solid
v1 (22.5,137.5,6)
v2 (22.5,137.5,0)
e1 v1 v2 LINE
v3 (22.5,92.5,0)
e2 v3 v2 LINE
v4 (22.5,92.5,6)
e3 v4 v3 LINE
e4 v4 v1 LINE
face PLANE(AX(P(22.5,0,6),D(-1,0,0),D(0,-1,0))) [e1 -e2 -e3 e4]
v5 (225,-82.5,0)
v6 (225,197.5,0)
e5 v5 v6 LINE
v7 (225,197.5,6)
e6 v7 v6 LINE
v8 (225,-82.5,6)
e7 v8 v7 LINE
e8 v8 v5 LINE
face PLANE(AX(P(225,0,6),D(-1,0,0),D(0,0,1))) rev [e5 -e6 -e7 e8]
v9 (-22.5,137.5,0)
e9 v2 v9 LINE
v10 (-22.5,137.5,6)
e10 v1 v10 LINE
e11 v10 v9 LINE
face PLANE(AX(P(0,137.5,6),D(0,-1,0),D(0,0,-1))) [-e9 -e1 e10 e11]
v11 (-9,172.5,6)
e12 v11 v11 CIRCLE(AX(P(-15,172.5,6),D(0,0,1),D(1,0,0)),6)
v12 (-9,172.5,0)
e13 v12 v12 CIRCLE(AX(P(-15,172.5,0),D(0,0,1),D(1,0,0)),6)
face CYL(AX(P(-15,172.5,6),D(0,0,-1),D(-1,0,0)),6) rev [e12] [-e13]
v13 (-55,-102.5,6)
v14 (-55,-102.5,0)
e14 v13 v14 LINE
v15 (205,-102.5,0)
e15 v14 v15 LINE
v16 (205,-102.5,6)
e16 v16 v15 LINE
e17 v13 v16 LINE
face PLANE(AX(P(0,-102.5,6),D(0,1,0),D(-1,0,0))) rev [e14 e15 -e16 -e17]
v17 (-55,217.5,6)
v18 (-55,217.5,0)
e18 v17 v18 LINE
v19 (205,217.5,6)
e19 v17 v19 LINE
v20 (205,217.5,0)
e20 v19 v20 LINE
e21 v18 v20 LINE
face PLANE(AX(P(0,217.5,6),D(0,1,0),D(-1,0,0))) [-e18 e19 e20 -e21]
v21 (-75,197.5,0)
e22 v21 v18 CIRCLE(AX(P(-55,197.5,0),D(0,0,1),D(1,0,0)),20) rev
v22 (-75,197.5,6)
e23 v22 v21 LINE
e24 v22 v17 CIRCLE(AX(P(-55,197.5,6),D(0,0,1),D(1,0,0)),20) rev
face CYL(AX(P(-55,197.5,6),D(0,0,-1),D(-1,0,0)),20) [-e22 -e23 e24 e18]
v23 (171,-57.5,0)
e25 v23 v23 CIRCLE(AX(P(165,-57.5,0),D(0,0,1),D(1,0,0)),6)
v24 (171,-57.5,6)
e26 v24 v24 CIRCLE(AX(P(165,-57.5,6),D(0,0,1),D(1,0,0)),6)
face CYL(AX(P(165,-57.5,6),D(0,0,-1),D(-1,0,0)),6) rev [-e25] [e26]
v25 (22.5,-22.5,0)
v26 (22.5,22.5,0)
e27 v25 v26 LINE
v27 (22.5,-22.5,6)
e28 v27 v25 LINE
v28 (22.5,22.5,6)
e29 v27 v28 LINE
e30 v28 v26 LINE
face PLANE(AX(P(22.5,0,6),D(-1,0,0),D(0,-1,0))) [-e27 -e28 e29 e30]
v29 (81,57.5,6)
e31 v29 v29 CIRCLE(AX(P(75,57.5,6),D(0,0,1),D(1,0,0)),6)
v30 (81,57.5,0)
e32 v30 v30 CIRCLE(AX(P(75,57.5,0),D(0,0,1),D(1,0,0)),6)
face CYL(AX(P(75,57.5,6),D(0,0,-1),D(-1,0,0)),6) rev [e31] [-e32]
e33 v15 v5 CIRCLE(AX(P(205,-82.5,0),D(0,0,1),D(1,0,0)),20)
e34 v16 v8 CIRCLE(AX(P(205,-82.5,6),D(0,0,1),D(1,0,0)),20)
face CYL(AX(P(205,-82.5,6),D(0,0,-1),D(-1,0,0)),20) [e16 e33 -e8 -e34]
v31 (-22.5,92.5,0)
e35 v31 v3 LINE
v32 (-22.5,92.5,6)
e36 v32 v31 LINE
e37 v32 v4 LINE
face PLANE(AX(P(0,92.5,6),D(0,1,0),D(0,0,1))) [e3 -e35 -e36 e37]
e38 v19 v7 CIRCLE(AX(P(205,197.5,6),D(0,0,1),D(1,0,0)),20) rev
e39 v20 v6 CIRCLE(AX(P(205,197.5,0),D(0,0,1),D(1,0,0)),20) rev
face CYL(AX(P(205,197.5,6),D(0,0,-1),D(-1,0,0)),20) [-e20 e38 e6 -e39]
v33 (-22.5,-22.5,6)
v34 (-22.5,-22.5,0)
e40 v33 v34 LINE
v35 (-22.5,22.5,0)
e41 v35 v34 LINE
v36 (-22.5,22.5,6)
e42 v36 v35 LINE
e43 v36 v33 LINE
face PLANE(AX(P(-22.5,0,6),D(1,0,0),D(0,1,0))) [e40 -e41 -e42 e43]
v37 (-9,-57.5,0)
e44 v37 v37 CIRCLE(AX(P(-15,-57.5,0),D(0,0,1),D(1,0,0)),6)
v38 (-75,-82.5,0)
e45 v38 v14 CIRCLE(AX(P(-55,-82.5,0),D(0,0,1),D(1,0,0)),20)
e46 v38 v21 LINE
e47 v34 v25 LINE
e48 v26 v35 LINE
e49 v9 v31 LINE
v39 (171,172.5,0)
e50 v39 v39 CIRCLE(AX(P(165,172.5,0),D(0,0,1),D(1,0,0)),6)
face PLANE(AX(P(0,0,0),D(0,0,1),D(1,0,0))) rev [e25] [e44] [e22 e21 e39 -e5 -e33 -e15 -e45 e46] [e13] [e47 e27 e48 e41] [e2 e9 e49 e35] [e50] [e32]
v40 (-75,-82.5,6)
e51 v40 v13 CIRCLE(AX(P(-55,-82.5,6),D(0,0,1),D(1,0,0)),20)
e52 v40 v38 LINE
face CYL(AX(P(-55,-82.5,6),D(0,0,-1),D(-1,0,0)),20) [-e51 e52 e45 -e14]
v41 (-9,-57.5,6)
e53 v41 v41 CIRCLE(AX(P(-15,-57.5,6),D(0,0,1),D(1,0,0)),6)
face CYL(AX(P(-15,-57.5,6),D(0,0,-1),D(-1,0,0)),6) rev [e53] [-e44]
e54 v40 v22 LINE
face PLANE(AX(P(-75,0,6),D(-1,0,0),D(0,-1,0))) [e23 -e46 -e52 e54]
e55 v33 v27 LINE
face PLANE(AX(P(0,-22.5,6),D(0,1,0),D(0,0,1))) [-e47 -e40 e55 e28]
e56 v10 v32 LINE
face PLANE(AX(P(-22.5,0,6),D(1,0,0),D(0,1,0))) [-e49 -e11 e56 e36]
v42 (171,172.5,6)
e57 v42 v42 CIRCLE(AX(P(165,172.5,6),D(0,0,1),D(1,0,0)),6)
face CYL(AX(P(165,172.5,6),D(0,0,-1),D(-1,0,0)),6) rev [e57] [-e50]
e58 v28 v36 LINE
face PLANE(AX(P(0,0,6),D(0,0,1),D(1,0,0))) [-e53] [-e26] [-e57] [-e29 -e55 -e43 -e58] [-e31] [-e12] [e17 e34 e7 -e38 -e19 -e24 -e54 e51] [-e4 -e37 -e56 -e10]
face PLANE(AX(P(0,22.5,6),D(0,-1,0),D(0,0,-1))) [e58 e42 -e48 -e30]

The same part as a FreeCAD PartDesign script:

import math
import FreeCAD as App
import Part
import Sketcher

V = App.Vector

doc = App.newDocument("Part")
params = doc.addObject("Spreadsheet::Sheet", "Params")
for row, (alias, value) in enumerate([
    ("sketch1_diameter", "12 mm"),
    ("sketch1_radius", "20 mm"),
    ("sketch1_width", "260 mm"),
    ("sketch1_width2", "45 mm"),
    ("sketch1_height", "280 mm"),
    ("pad1_length", "6 mm"),
], start=1):
    params.set(f"A{row}", alias)
    params.set(f"B{row}", "=" + value)
    params.setAlias(f"B{row}", alias)

body = doc.addObject("PartDesign::Body", "Body")

# Sketch on XY plane
sketch1 = body.newObject("Sketcher::SketchObject", "Sketch")
sketch1.AttachmentSupport = (doc.getObject("XY_Plane"), [""])
sketch1.MapMode = "FlatFace"
sketch1.addGeometry(Part.LineSegment(V(-55, -102, 0), V(205, -102, 0)), False)
sketch1.addGeometry(Part.ArcOfCircle(Part.Circle(V(205, -83, 0), V(0, 0, 1), 20), math.radians(-90), math.radians(0)), False)
sketch1.addGeometry(Part.LineSegment(V(225, -82, 0), V(225, 198, 0)), False)
sketch1.addGeometry(Part.ArcOfCircle(Part.Circle(V(205, 198, 0), V(0, 0, 1), 20), math.radians(0), math.radians(90)), False)
sketch1.addGeometry(Part.LineSegment(V(205, 218, 0), V(-55, 218, 0)), False)
sketch1.addGeometry(Part.ArcOfCircle(Part.Circle(V(-55, 198, 0), V(0, 0, 1), 20), math.radians(90), math.radians(180)), False)
sketch1.addGeometry(Part.LineSegment(V(-75, 198, 0), V(-75, -82, 0)), False)
sketch1.addGeometry(Part.ArcOfCircle(Part.Circle(V(-55, -83, 0), V(0, 0, 1), 20), math.radians(180), math.radians(270)), False)
sketch1.addGeometry(Part.Circle(V(-15, -58, 0), V(0, 0, 1), 6), False)
sketch1.addGeometry(Part.LineSegment(V(22, 22, 0), V(22, -22, 0)), False)
sketch1.addGeometry(Part.LineSegment(V(22, -22, 0), V(-22, -22, 0)), False)
sketch1.addGeometry(Part.LineSegment(V(-22, -22, 0), V(-22, 22, 0)), False)
sketch1.addGeometry(Part.LineSegment(V(-22, 22, 0), V(22, 22, 0)), False)
sketch1.addGeometry(Part.Circle(V(165, -58, 0), V(0, 0, 1), 6), False)
sketch1.addGeometry(Part.LineSegment(V(22, 92, 0), V(-22, 92, 0)), False)
sketch1.addGeometry(Part.LineSegment(V(-22, 92, 0), V(-22, 138, 0)), False)
sketch1.addGeometry(Part.LineSegment(V(-22, 138, 0), V(22, 138, 0)), False)
sketch1.addGeometry(Part.LineSegment(V(22, 138, 0), V(22, 92, 0)), False)
sketch1.addGeometry(Part.Circle(V(-15, 172, 0), V(0, 0, 1), 6), False)
sketch1.addGeometry(Part.Circle(V(75, 58, 0), V(0, 0, 1), 6), False)
sketch1.addGeometry(Part.Circle(V(165, 172, 0), V(0, 0, 1), 6), False)
sketch1.addConstraint(Sketcher.Constraint("Tangent", 0, 2, 1, 1))
sketch1.addConstraint(Sketcher.Constraint("Tangent", 1, 2, 2, 1))
sketch1.addConstraint(Sketcher.Constraint("Tangent", 2, 2, 3, 1))
sketch1.addConstraint(Sketcher.Constraint("Tangent", 3, 2, 4, 1))
sketch1.addConstraint(Sketcher.Constraint("Tangent", 4, 2, 5, 1))
sketch1.addConstraint(Sketcher.Constraint("Tangent", 5, 2, 6, 1))
sketch1.addConstraint(Sketcher.Constraint("Tangent", 6, 2, 7, 1))
sketch1.addConstraint(Sketcher.Constraint("Tangent", 7, 2, 0, 1))
sketch1.addConstraint(Sketcher.Constraint("Coincident", 9, 2, 10, 1))
sketch1.addConstraint(Sketcher.Constraint("Coincident", 10, 2, 11, 1))
sketch1.addConstraint(Sketcher.Constraint("Coincident", 11, 2, 12, 1))
sketch1.addConstraint(Sketcher.Constraint("Coincident", 12, 2, 9, 1))
sketch1.addConstraint(Sketcher.Constraint("Coincident", 14, 2, 15, 1))
sketch1.addConstraint(Sketcher.Constraint("Coincident", 15, 2, 16, 1))
sketch1.addConstraint(Sketcher.Constraint("Coincident", 16, 2, 17, 1))
sketch1.addConstraint(Sketcher.Constraint("Coincident", 17, 2, 14, 1))
sketch1.addConstraint(Sketcher.Constraint("Horizontal", 0))
sketch1.addConstraint(Sketcher.Constraint("Vertical", 2))
sketch1.addConstraint(Sketcher.Constraint("Horizontal", 4))
sketch1.addConstraint(Sketcher.Constraint("Vertical", 6))
sketch1.addConstraint(Sketcher.Constraint("Vertical", 9))
sketch1.addConstraint(Sketcher.Constraint("Horizontal", 10))
sketch1.addConstraint(Sketcher.Constraint("Vertical", 11))
sketch1.addConstraint(Sketcher.Constraint("Horizontal", 12))
sketch1.addConstraint(Sketcher.Constraint("Horizontal", 14))
sketch1.addConstraint(Sketcher.Constraint("Vertical", 15))
sketch1.addConstraint(Sketcher.Constraint("Horizontal", 16))
sketch1.addConstraint(Sketcher.Constraint("Vertical", 17))
sketch1.addConstraint(Sketcher.Constraint("Equal", 1, 3))
sketch1.addConstraint(Sketcher.Constraint("Equal", 3, 5))
sketch1.addConstraint(Sketcher.Constraint("Equal", 5, 7))
sketch1.addConstraint(Sketcher.Constraint("Equal", 8, 13))
sketch1.addConstraint(Sketcher.Constraint("Equal", 13, 18))
sketch1.addConstraint(Sketcher.Constraint("Equal", 18, 19))
sketch1.addConstraint(Sketcher.Constraint("Equal", 19, 20))
sketch1.addConstraint(Sketcher.Constraint("Symmetric", 9, 2, 11, 2, -1, 1))
sketch1.addConstraint(Sketcher.Constraint("Horizontal", 8, 3, 13, 3))
sketch1.addConstraint(Sketcher.Constraint("Horizontal", 18, 3, 20, 3))
sketch1.addConstraint(Sketcher.Constraint("Vertical", 8, 3, 18, 3))
sketch1.addConstraint(Sketcher.Constraint("Vertical", 13, 3, 20, 3))
sketch1.addConstraint(Sketcher.Constraint("Vertical", 11, 2, 14, 2))
sketch1.addConstraint(Sketcher.Constraint("Vertical", 12, 2, 16, 2))
sketch1.addConstraint(Sketcher.Constraint("Equal", 16, 9))
sketch1.addConstraint(Sketcher.Constraint("Equal", 11, 15))
sketch1.addConstraint(Sketcher.Constraint("Diameter", 8, 12.0))
sketch1.addConstraint(Sketcher.Constraint("Radius", 1, 20.0))
sketch1.addConstraint(Sketcher.Constraint("DistanceX", 0, 1, 0, 2, 260.0))
sketch1.addConstraint(Sketcher.Constraint("DistanceX", 10, 2, 10, 1, 45.0))
sketch1.addConstraint(Sketcher.Constraint("DistanceY", 2, 1, 2, 2, 280.0))
sketch1.addConstraint(Sketcher.Constraint("DistanceX", -1, 1, 1, 3, 205.0))
sketch1.addConstraint(Sketcher.Constraint("DistanceX", 8, 3, -1, 1, 15.0))
sketch1.addConstraint(Sketcher.Constraint("DistanceX", -1, 1, 13, 3, 165.0))
sketch1.addConstraint(Sketcher.Constraint("DistanceX", -1, 1, 19, 3, 75.0))
sketch1.addConstraint(Sketcher.Constraint("DistanceY", 7, 3, 8, 3, 25.0))
sketch1.addConstraint(Sketcher.Constraint("DistanceY", 18, 3, 5, 3, 25.0))
sketch1.addConstraint(Sketcher.Constraint("DistanceY", 8, 3, 19, 3, 115.0))
sketch1.addConstraint(Sketcher.Constraint("DistanceY", 8, 3, 9, 2, 35.0))
sketch1.addConstraint(Sketcher.Constraint("DistanceY", 11, 2, 14, 2, 70.0))
sketch1.setExpression("Constraints[44]", "Params.sketch1_diameter")
sketch1.setExpression("Constraints[45]", "Params.sketch1_radius")
sketch1.setExpression("Constraints[46]", "Params.sketch1_width")
sketch1.setExpression("Constraints[47]", "Params.sketch1_width2")
sketch1.setExpression("Constraints[48]", "Params.sketch1_height")
pad1 = body.newObject("PartDesign::Pad", "Pad")
pad1.Profile = sketch1
pad1.setExpression("Length", "Params.pad1_length")

doc.recompute()
